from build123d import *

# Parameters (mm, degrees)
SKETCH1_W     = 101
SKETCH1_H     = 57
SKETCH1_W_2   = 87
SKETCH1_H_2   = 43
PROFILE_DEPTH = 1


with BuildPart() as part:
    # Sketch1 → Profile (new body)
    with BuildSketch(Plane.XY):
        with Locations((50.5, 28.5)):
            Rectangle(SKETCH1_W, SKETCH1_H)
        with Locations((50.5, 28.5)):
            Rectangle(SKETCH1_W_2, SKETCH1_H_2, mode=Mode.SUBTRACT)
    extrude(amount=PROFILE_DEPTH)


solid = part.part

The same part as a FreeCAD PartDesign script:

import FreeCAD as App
import Part
import Sketcher

V = App.Vector

doc = App.newDocument("Part")
params = doc.addObject("Spreadsheet::Sheet", "Params")
for row, (alias, value) in enumerate([
    ("sketch1_width", "101 mm"),
    ("sketch1_width2", "87 mm"),
    ("sketch1_height", "57 mm"),
    ("sketch1_height2", "43 mm"),
    ("pad1_length", "1 mm"),
], start=1):
    params.set(f"A{row}", alias)
    params.set(f"B{row}", "=" + value)
    params.setAlias(f"B{row}", alias)

body = doc.addObject("PartDesign::Body", "Body")

sketch1 = body.newObject("Sketcher::SketchObject", "Sketch")
sketch1.AttachmentSupport = (doc.getObject("XY_Plane"), [""])
sketch1.MapMode = "FlatFace"
sketch1.addGeometry(Part.LineSegment(V(0, 57, 0), V(0, 0, 0)), False)
sketch1.addGeometry(Part.LineSegment(V(0, 0, 0), V(101, 0, 0)), False)
sketch1.addGeometry(Part.LineSegment(V(101, 0, 0), V(101, 57, 0)), False)
sketch1.addGeometry(Part.LineSegment(V(101, 57, 0), V(0, 57, 0)), False)
sketch1.addGeometry(Part.LineSegment(V(94, 7, 0), V(7, 7, 0)), False)
sketch1.addGeometry(Part.LineSegment(V(7, 7, 0), V(7, 50, 0)), False)
sketch1.addGeometry(Part.LineSegment(V(7, 50, 0), V(94, 50, 0)), False)
sketch1.addGeometry(Part.LineSegment(V(94, 50, 0), V(94, 7, 0)), False)
sketch1.addConstraint(Sketcher.Constraint("Coincident", 0, 2, 1, 1))
sketch1.addConstraint(Sketcher.Constraint("Coincident", 1, 2, 2, 1))
sketch1.addConstraint(Sketcher.Constraint("Coincident", 2, 2, 3, 1))
sketch1.addConstraint(Sketcher.Constraint("Coincident", 3, 2, 0, 1))
sketch1.addConstraint(Sketcher.Constraint("Coincident", 4, 2, 5, 1))
sketch1.addConstraint(Sketcher.Constraint("Coincident", 5, 2, 6, 1))
sketch1.addConstraint(Sketcher.Constraint("Coincident", 6, 2, 7, 1))
sketch1.addConstraint(Sketcher.Constraint("Coincident", 7, 2, 4, 1))
sketch1.addConstraint(Sketcher.Constraint("Vertical", 0))
sketch1.addConstraint(Sketcher.Constraint("Horizontal", 1))
sketch1.addConstraint(Sketcher.Constraint("Vertical", 2))
sketch1.addConstraint(Sketcher.Constraint("Horizontal", 3))
sketch1.addConstraint(Sketcher.Constraint("Horizontal", 4))
sketch1.addConstraint(Sketcher.Constraint("Vertical", 5))
sketch1.addConstraint(Sketcher.Constraint("Horizontal", 6))
sketch1.addConstraint(Sketcher.Constraint("Vertical", 7))
sketch1.addConstraint(Sketcher.Constraint("Coincident", 0, 2, -1, 1))
sketch1.addConstraint(Sketcher.Constraint("DistanceX", 1, 1, 1, 2, 101.0))
sketch1.addConstraint(Sketcher.Constraint("DistanceX", 4, 2, 4, 1, 87.0))
sketch1.addConstraint(Sketcher.Constraint("DistanceY", 0, 2, 0, 1, 57.0))
sketch1.addConstraint(Sketcher.Constraint("DistanceY", 5, 1, 5, 2, 43.0))
sketch1.addConstraint(Sketcher.Constraint("DistanceX", -1, 1, 4, 2, 7.0))
sketch1.addConstraint(Sketcher.Constraint("DistanceY", -1, 1, 4, 2, 7.0))
sketch1.setExpression("Constraints[17]", "Params.sketch1_width")
sketch1.setExpression("Constraints[18]", "Params.sketch1_width2")
sketch1.setExpression("Constraints[19]", "Params.sketch1_height")
sketch1.setExpression("Constraints[20]", "Params.sketch1_height2")
pad1 = body.newObject("PartDesign::Pad", "Pad")
pad1.Profile = sketch1
pad1.setExpression("Length", "Params.pad1_length")

doc.recompute()
